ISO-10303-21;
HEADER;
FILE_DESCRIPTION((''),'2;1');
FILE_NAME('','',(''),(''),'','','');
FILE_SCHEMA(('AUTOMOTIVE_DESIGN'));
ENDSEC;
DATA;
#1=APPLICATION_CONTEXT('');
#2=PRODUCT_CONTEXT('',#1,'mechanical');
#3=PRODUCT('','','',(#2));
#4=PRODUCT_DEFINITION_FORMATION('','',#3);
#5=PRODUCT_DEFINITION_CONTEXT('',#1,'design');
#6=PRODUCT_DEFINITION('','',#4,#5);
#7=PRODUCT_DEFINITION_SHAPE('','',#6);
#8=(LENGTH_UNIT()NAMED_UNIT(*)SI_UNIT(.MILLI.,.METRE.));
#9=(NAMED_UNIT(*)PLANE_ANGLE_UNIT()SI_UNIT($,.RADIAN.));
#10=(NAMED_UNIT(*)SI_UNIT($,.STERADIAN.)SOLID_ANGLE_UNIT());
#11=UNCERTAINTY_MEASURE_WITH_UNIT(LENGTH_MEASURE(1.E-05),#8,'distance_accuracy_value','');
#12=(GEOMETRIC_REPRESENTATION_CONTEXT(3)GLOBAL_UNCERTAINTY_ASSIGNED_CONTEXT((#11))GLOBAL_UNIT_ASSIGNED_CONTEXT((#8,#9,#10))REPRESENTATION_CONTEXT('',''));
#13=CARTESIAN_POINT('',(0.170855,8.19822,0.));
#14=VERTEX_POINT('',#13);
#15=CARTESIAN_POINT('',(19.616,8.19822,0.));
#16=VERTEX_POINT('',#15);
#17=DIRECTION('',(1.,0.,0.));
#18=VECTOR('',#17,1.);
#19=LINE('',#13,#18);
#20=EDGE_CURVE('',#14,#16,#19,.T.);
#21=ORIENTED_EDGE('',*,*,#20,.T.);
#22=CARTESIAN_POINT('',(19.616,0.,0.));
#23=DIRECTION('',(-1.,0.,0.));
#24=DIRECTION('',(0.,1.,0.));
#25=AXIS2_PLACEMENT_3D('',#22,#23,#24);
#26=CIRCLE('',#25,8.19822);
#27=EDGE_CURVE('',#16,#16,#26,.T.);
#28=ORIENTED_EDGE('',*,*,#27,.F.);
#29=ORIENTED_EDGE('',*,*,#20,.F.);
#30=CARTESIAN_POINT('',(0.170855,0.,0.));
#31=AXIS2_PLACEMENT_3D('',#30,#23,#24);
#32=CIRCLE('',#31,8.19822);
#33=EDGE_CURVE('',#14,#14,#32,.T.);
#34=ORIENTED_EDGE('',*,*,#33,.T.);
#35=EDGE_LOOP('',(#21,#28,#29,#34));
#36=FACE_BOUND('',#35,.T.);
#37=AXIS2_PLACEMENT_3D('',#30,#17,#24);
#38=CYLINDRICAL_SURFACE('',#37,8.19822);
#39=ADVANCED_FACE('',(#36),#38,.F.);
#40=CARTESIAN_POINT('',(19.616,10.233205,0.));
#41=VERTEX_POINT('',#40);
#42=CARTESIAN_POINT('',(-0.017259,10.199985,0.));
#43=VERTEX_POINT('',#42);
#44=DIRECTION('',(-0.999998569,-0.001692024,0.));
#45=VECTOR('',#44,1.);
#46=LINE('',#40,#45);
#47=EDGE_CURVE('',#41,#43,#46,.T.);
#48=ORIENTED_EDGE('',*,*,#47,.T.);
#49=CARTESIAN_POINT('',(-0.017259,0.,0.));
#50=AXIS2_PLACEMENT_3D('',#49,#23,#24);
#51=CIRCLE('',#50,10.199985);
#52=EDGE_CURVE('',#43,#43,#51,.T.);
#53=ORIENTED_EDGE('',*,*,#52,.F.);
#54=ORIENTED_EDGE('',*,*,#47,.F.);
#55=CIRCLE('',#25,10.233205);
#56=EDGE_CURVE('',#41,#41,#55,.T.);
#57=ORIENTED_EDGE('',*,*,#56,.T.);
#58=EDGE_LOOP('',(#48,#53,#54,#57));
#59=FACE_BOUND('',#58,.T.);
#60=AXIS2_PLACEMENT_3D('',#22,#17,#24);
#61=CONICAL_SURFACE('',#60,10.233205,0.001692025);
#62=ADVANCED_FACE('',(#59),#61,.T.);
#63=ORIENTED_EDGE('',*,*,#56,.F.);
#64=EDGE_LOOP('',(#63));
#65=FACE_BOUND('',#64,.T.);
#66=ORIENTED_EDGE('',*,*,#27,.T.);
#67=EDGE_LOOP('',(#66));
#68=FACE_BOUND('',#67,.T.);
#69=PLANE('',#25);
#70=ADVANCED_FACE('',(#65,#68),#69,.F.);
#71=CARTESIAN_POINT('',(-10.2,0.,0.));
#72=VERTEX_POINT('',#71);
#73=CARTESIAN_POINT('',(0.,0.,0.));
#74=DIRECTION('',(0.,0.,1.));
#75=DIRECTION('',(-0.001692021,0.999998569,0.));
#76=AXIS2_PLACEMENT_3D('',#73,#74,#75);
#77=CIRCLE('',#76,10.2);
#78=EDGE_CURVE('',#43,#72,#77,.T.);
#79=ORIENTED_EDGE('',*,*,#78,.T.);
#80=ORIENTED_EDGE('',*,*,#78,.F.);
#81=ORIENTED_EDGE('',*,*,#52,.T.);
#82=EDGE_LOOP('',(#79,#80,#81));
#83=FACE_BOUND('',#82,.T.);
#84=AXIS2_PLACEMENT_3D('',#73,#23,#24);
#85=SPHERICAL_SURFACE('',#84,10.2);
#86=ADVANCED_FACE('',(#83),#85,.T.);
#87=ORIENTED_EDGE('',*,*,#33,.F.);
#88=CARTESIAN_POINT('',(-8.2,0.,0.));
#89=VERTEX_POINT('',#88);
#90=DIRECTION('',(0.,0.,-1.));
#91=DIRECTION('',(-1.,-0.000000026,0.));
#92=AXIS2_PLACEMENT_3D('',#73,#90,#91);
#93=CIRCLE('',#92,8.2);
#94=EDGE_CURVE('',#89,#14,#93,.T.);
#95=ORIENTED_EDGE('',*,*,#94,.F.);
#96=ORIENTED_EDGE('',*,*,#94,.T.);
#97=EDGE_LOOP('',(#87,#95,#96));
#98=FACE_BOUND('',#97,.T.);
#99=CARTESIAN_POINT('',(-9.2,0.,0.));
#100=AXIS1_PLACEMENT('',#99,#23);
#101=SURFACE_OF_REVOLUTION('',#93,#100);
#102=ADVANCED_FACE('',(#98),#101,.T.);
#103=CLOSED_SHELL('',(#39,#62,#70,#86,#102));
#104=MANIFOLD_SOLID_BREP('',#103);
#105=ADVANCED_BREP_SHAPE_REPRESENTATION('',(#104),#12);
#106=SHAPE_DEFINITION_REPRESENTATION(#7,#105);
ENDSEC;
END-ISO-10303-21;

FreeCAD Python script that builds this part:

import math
import FreeCAD as App
import Part
import Sketcher
from FreeCAD import Vector
Q = App.Units.Quantity

doc = App.newDocument("Part")
params = doc.addObject("Spreadsheet::Sheet", "Params")
for row, (alias, value) in enumerate([
    ("sketch1_radius", "10.2 mm"),
    ("sketch1_radius2", "8.2 mm"),
    ("revolution_angle", "360 deg"),
], start=1):
    params.set(f"A{row}", alias)
    params.set(f"B{row}", "=" + value)
    params.setAlias(f"B{row}", alias)

body = doc.addObject("PartDesign::Body", "Body")

sketch1 = body.newObject("Sketcher::SketchObject", "Sketch")
sketch1.AttachmentSupport = (doc.getObject("XY_Plane"), [""])
sketch1.MapMode = "FlatFace"
sketch1.addGeometry([
    Part.ArcOfCircle(Part.Circle(Vector(0, 0, 0), Vector(0, 0, 1), 10.2), math.radians(90.096946), math.radians(180)),
    Part.LineSegment(Vector(-10.2, 0, 0), Vector(-8.2, 0, 0)),
    Part.ArcOfCircle(Part.Circle(Vector(0, 0, 0), Vector(0, 0, 1), 8.2), math.radians(88.8061), math.radians(180.000002)),
    Part.LineSegment(Vector(0.170855, 8.19822, 0), Vector(19.616, 8.19822, 0)),
    Part.LineSegment(Vector(19.616, 8.19822, 0), Vector(19.616, 10.233205, 0)),
    Part.LineSegment(Vector(19.616, 10.233205, 0), Vector(-0.017259, 10.199985, 0)),
], False)
sketch1.addConstraint([
    Sketcher.Constraint("Coincident", 0, 2, 1, 1),
    Sketcher.Constraint("Coincident", 1, 2, 2, 2),
    Sketcher.Constraint("Coincident", 2, 1, 3, 1),
    Sketcher.Constraint("Coincident", 3, 2, 4, 1),
    Sketcher.Constraint("Coincident", 4, 2, 5, 1),
    Sketcher.Constraint("Tangent", 5, 2, 0, 1),
    Sketcher.Constraint("Horizontal", 1),
    Sketcher.Constraint("Horizontal", 3),
    Sketcher.Constraint("Vertical", 4),
    Sketcher.Constraint("Coincident", 0, 3, -1, 1),
    Sketcher.Constraint("Coincident", 2, 3, -1, 1),
    Sketcher.Constraint("PointOnObject", 0, 2, -1),
    Sketcher.Constraint("Radius", 0, Q("10.2 mm")),
    Sketcher.Constraint("Radius", 2, Q("8.2 mm")),
    Sketcher.Constraint("DistanceX", -1, 1, 3, 2, Q("19.616 mm")),
    Sketcher.Constraint("DistanceX", 3, 1, 3, 2, Q("19.445145 mm")),
    Sketcher.Constraint("DistanceY", 4, 1, 4, 2, Q("2.034985 mm")),
])
sketch1.setExpression("Constraints[12]", "Params.sketch1_radius")
sketch1.setExpression("Constraints[13]", "Params.sketch1_radius2")
revolution = body.newObject("PartDesign::Revolution", "Revolution")
revolution.Profile = sketch1
revolution.ReferenceAxis = (sketch1, ["H_Axis"])
revolution.setExpression("Angle", "Params.revolution_angle")

doc.recompute()
